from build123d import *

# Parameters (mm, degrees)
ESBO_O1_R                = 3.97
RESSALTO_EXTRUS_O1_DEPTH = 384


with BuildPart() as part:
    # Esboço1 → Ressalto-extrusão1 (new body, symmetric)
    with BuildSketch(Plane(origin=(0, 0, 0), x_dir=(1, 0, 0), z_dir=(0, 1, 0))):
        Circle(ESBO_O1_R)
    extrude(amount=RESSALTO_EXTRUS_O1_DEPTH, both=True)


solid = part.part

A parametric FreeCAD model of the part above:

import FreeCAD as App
import Part
import Sketcher
Q = App.Units.Quantity

doc = App.newDocument("Part")
body = doc.addObject("PartDesign::Body", "Body")

# Sketch on XZ plane
sketch1 = body.newObject("Sketcher::SketchObject", "Sketch")
sketch1.AttachmentSupport = (doc.getObject("XZ_Plane"), [""])
sketch1.MapMode = "FlatFace"
sketch1.addGeometry(Part.Circle(App.Vector(0, 0, 0), App.Vector(0, 0, 1), 3.97), False)
sketch1.addConstraint(Sketcher.Constraint("Coincident", 0, 3, -1, 1))
sketch1.addConstraint(Sketcher.Constraint("Diameter", 0, Q("7.94 mm")))
pad1 = body.newObject("PartDesign::Pad", "Pad")
pad1.Profile = sketch1
pad1.Length = 768
pad1.Midplane = True

doc.recompute()
